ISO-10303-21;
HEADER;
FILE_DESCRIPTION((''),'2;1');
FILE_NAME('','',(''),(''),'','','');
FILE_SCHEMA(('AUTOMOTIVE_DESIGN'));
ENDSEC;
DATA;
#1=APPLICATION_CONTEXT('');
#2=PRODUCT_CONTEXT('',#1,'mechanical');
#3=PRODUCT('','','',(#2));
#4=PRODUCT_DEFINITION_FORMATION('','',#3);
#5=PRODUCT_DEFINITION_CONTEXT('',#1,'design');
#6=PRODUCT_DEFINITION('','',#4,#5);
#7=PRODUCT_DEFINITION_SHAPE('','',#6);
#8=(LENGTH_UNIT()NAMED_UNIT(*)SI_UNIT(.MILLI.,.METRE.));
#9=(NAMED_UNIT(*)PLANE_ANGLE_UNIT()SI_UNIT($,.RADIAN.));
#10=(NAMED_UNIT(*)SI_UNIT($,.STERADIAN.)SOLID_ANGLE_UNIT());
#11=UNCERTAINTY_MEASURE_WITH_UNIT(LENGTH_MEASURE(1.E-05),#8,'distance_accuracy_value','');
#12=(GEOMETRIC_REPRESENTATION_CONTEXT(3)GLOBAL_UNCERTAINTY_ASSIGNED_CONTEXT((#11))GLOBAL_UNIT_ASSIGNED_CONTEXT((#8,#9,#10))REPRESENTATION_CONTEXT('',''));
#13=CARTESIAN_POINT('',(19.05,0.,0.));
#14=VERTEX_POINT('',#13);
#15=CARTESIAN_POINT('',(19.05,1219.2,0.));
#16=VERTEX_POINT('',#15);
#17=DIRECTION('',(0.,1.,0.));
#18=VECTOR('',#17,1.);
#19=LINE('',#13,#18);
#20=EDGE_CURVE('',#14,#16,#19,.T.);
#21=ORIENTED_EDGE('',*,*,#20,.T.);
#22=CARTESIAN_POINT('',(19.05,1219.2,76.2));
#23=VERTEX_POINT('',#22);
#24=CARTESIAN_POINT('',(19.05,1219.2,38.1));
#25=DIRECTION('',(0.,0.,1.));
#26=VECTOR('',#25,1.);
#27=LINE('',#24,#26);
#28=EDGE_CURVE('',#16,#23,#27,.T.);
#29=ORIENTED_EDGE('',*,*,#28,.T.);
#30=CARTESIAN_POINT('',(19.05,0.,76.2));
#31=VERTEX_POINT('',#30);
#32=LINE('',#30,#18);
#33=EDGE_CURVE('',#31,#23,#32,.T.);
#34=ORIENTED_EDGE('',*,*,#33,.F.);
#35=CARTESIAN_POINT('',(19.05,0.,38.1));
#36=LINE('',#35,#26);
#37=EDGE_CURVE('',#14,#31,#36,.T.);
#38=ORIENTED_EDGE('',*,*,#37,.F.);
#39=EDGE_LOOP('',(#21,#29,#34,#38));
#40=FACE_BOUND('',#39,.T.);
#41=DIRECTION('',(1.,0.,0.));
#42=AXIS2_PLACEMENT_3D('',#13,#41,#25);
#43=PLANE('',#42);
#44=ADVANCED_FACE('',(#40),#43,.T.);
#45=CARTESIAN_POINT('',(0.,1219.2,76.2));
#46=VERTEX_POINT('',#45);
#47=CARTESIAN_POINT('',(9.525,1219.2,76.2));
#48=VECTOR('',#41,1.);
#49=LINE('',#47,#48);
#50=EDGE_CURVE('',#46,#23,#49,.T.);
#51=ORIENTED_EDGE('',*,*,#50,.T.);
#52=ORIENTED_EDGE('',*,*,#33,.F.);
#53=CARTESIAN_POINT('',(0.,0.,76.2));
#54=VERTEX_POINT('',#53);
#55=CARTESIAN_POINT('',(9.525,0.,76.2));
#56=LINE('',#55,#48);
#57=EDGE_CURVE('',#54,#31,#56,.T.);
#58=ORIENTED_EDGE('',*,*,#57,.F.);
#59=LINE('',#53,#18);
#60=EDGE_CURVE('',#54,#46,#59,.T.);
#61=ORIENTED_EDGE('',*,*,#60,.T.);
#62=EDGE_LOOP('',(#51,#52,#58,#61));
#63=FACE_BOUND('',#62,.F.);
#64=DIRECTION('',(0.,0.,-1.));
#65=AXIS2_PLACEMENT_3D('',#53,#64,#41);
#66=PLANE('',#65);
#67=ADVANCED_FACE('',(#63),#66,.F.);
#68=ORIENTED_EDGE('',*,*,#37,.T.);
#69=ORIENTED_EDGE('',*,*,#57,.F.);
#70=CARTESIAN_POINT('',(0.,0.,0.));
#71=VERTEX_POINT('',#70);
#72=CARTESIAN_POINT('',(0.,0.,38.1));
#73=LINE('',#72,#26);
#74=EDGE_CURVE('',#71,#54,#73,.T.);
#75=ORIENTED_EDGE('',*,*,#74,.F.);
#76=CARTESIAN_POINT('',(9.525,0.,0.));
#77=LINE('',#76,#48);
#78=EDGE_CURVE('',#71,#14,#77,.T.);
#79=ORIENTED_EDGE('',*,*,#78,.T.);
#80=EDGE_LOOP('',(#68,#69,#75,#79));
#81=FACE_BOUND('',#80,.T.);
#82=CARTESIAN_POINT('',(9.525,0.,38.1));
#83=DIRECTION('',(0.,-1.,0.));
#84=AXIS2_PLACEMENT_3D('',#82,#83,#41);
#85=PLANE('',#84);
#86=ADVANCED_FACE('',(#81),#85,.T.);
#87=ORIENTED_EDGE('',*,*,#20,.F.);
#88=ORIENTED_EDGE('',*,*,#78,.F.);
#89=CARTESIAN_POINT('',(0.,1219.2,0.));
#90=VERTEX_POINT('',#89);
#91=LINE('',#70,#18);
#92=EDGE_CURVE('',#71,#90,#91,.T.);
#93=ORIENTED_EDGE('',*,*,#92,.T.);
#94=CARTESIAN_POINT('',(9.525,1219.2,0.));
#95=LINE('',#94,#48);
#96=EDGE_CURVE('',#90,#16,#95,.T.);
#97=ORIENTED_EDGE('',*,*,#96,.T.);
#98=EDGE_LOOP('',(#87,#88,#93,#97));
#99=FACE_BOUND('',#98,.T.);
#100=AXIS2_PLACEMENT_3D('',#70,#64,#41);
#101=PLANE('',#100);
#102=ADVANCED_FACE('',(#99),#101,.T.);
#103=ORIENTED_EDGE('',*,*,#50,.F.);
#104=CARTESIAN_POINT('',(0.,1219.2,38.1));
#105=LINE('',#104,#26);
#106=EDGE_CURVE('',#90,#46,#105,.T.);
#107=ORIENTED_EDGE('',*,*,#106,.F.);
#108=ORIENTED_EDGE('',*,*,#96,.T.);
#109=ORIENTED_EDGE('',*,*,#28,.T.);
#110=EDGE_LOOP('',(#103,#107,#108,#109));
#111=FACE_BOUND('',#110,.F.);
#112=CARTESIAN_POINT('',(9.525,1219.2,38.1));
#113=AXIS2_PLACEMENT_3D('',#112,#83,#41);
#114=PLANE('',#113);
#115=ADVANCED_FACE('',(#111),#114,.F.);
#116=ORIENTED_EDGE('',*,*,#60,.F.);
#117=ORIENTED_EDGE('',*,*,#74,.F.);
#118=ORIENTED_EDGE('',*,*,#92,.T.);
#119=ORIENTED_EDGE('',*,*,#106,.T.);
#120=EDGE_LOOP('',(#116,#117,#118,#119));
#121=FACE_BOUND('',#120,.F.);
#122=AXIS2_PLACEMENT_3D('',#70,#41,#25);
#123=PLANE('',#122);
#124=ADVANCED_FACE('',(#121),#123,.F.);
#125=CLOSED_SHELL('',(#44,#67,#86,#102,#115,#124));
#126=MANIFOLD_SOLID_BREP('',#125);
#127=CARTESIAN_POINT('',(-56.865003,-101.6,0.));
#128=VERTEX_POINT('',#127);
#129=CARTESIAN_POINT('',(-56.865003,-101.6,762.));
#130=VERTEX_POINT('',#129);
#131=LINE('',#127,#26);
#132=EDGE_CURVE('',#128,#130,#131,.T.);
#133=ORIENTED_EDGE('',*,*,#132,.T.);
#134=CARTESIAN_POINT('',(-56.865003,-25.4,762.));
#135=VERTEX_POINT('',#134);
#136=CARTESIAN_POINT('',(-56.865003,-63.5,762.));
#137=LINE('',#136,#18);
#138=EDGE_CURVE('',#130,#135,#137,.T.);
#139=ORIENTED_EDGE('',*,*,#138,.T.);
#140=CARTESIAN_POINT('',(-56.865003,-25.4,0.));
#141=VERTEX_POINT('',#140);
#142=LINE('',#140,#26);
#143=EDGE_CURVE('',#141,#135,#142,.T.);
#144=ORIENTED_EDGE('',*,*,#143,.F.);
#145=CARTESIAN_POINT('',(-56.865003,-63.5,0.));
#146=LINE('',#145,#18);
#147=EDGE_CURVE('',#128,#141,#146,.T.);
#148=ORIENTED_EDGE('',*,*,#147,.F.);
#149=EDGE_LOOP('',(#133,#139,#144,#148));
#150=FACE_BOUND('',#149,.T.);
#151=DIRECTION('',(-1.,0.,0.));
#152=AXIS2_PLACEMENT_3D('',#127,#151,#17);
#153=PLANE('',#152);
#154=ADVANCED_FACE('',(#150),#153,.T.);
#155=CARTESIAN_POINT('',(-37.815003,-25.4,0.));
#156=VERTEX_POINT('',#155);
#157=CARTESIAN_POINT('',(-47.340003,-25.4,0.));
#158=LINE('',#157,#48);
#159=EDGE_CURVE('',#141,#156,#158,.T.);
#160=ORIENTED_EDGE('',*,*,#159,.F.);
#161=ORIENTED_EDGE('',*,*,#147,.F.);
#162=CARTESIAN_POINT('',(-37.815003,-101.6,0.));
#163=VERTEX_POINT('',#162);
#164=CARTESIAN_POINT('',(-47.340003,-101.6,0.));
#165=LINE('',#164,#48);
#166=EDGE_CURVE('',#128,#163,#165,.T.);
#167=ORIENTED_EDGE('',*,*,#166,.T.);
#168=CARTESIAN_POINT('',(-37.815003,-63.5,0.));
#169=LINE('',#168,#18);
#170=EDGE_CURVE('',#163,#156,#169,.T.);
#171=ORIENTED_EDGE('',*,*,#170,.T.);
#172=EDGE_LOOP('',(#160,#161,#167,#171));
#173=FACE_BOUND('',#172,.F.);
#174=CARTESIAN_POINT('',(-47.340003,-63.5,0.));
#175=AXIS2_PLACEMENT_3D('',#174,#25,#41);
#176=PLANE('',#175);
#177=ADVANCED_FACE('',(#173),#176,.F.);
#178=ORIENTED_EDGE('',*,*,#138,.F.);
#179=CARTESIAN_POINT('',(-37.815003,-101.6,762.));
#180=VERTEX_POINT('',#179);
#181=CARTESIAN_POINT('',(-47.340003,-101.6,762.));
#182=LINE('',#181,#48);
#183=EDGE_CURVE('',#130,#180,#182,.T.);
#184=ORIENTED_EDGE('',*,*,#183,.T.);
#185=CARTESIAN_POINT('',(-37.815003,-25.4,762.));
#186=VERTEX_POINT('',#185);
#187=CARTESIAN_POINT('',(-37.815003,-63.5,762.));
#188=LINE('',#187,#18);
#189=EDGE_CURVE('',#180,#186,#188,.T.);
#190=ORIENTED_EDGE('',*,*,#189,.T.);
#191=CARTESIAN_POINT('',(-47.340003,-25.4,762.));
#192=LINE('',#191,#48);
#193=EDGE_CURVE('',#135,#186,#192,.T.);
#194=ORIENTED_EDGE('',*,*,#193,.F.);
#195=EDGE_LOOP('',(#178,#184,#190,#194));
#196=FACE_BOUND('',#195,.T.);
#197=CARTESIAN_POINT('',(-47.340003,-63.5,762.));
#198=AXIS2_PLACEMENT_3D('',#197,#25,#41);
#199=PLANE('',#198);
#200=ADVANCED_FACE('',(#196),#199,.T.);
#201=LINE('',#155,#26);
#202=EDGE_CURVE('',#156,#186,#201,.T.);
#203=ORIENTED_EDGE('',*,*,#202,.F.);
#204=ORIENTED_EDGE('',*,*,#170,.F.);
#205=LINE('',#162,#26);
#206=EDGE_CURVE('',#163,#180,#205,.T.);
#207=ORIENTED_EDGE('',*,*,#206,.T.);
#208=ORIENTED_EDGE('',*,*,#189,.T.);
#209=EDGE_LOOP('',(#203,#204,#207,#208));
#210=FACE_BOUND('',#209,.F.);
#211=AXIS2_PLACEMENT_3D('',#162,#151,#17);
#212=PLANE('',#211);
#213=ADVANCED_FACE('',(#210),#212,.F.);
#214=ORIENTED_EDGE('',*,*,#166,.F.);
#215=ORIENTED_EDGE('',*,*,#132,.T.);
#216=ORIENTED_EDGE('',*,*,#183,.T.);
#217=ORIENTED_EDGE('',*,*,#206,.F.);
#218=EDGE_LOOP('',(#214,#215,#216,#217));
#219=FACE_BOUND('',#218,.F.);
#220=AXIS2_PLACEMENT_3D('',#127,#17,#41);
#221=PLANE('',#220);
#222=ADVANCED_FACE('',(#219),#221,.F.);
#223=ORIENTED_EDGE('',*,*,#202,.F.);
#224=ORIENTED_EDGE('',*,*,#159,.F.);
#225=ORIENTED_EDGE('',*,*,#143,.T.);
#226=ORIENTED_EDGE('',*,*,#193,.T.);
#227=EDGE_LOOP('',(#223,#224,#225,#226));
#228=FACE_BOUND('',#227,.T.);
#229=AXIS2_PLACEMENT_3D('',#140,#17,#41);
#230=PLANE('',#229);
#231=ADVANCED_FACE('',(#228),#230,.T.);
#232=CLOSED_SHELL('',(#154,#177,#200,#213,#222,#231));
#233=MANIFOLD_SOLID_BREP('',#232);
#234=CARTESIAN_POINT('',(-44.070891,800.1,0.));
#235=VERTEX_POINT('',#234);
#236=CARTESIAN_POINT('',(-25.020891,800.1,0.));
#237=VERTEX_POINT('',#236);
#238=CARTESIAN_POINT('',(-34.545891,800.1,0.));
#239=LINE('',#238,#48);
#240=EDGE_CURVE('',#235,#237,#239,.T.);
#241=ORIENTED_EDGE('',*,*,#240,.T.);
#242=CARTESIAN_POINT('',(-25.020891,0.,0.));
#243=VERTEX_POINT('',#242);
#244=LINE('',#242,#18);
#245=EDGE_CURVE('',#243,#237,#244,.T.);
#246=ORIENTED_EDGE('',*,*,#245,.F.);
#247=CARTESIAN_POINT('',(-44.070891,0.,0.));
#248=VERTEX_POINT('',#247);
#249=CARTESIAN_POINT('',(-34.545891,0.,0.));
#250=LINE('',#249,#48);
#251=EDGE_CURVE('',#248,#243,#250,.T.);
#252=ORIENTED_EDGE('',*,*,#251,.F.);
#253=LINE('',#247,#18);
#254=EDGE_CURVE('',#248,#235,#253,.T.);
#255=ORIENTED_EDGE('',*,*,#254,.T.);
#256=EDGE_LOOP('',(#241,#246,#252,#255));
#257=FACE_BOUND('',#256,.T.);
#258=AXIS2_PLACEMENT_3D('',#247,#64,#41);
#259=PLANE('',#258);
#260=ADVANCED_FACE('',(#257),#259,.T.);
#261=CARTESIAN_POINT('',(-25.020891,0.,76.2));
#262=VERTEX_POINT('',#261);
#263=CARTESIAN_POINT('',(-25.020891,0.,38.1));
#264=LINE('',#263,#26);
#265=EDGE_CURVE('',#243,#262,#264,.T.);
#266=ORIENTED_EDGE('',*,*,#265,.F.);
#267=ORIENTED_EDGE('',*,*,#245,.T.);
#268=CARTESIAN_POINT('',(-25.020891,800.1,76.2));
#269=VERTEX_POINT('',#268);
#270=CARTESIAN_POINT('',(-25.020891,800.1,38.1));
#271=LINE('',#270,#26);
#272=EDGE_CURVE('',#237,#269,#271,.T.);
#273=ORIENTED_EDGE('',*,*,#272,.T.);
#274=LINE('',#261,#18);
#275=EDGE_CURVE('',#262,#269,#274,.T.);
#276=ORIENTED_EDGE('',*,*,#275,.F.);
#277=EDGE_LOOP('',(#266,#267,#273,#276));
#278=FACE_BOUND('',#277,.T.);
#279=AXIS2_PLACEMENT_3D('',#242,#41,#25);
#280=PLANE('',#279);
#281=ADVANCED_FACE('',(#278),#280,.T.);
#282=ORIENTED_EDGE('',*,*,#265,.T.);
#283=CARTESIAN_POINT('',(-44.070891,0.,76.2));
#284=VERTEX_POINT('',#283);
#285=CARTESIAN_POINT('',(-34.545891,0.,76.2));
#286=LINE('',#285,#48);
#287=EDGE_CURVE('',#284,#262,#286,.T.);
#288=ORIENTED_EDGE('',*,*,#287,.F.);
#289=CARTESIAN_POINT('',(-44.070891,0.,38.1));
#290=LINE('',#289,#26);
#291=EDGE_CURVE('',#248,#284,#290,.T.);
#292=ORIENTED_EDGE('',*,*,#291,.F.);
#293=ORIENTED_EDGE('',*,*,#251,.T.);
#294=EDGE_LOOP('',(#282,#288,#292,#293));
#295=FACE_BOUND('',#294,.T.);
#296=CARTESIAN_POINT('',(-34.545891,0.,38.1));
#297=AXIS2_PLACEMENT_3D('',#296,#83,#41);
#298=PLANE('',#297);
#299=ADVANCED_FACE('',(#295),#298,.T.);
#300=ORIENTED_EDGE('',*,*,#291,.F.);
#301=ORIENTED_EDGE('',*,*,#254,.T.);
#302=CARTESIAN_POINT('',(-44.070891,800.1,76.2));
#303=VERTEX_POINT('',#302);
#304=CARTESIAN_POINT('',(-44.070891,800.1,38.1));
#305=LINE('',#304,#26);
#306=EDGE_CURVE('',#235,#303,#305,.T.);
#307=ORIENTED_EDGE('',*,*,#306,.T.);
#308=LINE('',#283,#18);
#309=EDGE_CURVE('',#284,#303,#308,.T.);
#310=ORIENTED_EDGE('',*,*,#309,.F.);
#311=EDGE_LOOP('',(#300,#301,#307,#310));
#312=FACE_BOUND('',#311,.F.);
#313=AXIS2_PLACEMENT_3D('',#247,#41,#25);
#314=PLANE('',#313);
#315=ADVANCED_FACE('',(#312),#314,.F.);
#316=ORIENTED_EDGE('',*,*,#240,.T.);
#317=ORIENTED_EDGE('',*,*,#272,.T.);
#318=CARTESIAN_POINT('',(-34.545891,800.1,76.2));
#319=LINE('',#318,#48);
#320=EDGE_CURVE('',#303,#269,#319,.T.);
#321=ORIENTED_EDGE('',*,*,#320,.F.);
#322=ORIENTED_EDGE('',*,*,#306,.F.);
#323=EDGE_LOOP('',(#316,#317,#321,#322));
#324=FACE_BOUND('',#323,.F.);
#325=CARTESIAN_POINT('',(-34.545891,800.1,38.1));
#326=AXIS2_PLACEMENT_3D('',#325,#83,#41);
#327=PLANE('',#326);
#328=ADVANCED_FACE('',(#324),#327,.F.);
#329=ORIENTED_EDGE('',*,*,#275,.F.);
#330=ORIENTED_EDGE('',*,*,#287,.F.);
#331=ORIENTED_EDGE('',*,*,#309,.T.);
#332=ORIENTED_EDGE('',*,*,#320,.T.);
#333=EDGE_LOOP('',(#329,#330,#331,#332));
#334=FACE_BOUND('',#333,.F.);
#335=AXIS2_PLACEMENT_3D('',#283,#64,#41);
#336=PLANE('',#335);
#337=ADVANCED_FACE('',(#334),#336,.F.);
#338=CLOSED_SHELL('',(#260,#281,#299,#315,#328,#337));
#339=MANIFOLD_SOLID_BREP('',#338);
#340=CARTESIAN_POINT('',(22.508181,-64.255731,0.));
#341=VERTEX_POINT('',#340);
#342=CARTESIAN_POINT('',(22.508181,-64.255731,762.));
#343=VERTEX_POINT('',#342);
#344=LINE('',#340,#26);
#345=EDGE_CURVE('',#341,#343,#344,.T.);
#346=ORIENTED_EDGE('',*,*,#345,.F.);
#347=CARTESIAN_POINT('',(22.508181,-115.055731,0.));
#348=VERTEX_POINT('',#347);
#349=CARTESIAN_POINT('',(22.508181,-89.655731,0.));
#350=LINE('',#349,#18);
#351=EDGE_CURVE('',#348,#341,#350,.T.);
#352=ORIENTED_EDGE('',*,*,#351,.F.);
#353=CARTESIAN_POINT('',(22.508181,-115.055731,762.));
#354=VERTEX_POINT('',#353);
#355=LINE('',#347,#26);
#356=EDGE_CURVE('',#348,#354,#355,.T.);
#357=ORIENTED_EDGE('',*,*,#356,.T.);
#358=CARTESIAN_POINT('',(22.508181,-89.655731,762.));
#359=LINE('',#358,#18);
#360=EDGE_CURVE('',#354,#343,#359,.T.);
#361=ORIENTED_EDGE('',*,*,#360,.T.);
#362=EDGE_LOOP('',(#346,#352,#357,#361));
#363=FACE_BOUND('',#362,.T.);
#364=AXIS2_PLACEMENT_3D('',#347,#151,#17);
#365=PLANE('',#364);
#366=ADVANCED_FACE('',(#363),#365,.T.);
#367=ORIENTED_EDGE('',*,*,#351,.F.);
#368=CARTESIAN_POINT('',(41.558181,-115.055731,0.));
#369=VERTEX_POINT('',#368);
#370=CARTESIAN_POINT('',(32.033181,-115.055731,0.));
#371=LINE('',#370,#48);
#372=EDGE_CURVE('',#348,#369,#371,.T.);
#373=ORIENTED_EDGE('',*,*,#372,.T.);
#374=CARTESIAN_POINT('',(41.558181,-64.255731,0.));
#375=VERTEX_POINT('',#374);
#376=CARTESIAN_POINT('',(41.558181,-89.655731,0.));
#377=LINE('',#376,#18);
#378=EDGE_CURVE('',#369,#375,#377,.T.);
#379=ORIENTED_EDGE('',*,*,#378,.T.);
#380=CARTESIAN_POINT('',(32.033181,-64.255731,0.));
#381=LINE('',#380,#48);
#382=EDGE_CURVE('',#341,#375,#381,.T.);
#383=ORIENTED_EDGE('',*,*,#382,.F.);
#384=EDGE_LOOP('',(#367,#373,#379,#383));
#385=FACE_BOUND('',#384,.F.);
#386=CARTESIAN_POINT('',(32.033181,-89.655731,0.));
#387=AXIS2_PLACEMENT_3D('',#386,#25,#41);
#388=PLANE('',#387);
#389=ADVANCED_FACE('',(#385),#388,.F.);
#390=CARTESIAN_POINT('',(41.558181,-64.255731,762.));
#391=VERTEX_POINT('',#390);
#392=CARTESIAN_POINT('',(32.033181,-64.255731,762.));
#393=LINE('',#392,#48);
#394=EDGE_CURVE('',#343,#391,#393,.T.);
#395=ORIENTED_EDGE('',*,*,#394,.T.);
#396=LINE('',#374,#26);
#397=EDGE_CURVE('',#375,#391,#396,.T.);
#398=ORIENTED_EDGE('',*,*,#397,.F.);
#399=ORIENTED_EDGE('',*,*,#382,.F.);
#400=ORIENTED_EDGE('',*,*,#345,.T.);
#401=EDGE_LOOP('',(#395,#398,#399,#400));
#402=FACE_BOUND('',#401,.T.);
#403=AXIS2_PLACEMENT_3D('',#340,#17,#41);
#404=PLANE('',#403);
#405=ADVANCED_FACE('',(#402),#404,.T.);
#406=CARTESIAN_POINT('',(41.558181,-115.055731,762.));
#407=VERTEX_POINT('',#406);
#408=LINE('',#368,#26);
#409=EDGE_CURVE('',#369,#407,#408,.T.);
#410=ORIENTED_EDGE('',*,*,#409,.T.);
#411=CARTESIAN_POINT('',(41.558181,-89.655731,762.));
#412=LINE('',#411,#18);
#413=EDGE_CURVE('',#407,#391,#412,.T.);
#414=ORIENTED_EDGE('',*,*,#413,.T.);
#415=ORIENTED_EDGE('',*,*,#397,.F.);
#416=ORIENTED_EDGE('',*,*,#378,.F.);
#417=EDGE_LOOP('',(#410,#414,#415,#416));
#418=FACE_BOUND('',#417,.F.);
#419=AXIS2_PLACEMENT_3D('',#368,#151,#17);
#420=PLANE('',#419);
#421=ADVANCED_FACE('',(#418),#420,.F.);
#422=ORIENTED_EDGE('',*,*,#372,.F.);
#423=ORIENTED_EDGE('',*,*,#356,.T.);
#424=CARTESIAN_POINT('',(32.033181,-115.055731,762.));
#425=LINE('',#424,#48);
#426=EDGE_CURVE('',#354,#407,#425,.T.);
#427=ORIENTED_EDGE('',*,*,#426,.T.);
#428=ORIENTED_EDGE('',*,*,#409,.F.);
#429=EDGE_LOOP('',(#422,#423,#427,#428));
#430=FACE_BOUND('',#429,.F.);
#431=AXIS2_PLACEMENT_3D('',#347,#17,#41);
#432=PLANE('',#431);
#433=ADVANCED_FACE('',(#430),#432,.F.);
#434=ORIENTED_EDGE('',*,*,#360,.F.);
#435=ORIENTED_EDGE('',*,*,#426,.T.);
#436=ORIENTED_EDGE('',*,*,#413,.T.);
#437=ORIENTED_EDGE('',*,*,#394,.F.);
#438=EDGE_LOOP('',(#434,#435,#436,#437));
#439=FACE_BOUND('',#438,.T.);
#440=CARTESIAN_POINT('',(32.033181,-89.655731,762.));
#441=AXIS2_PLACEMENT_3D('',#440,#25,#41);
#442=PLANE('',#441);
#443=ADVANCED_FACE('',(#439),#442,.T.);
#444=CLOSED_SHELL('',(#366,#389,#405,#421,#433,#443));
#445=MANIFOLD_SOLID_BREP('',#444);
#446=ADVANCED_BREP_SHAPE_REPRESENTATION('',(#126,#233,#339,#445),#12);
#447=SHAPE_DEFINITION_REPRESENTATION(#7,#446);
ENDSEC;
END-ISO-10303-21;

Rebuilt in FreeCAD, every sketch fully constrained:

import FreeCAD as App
import Part
import Sketcher
from FreeCAD import Vector
Q = App.Units.Quantity


def add_polygon(sketch, points):
    """Adds a closed chain of lines whose ends are joined by coincident constraints."""
    first, n = sketch.GeometryCount, len(points)
    for a, b in zip(points, points[1:] + points[:1]):
        sketch.addGeometry(Part.LineSegment(App.Vector(*a, 0), App.Vector(*b, 0)), False)
    for i in range(n):
        sketch.addConstraint(Sketcher.Constraint("Coincident", first + i, 2, first + (i + 1) % n, 1))

doc = App.newDocument("Part")
params = doc.addObject("Spreadsheet::Sheet", "Params")
for row, (alias, value) in enumerate([
    ("sketch1_height", "3 in"),
    ("sketch1_width", "0.75 in"),
    ("pad1_length", "48 in"),
    ("sketch2_height", "3 in"),
    ("sketch2_width", "0.75 in"),
    ("pad2_length", "31.5 in"),
    ("sketch3_height", "3 in"),
    ("sketch3_width", "0.75 in"),
    ("pad3_length", "30 in"),
    ("sketch4_height", "2 in"),
    ("sketch4_width", "0.75 in"),
    ("pad4_length", "30 in"),
], start=1):
    params.set(f"A{row}", alias)
    params.set(f"B{row}", "=" + value)
    params.setAlias(f"B{row}", alias)

body = doc.addObject("PartDesign::Body", "Body")

sketch1 = body.newObject("Sketcher::SketchObject", "Sketch")
sketch1.AttachmentSupport = (doc.getObject("XZ_Plane"), [""])
sketch1.MapMode = "FlatFace"
add_polygon(sketch1, [(0, 76), (0, 0), (19, 0), (19, 76)])
sketch1.addConstraint(Sketcher.Constraint("Vertical", 0))
sketch1.addConstraint(Sketcher.Constraint("Horizontal", 1))
sketch1.addConstraint(Sketcher.Constraint("Vertical", 2))
sketch1.addConstraint(Sketcher.Constraint("Horizontal", 3))
sketch1.addConstraint(Sketcher.Constraint("Coincident", 0, 2, -1, 1))
sketch1.addConstraint(Sketcher.Constraint("DistanceY", 0, 2, 0, 1, Q("3 in")))
sketch1.addConstraint(Sketcher.Constraint("DistanceX", 1, 1, 1, 2, Q("0.75 in")))
sketch1.setExpression("Constraints[9]", "Params.sketch1_height")
sketch1.setExpression("Constraints[10]", "Params.sketch1_width")
pad1 = body.newObject("PartDesign::Pad", "Pad")
pad1.Profile = sketch1
pad1.setExpression("Length", "Params.pad1_length")
pad1.Reversed = True
body2 = doc.addObject("PartDesign::Body", "Body001")

sketch2 = body2.newObject("Sketcher::SketchObject", "Sketch001")
sketch2.AttachmentSupport = (doc.getObject("XZ_Plane001"), [""])
sketch2.MapMode = "FlatFace"
add_polygon(sketch2, [(-44, 76), (-44, 0), (-25, 0), (-25, 76)])
sketch2.addConstraint(Sketcher.Constraint("Vertical", 0))
sketch2.addConstraint(Sketcher.Constraint("Horizontal", 1))
sketch2.addConstraint(Sketcher.Constraint("Vertical", 2))
sketch2.addConstraint(Sketcher.Constraint("Horizontal", 3))
sketch2.addConstraint(Sketcher.Constraint("PointOnObject", 0, 2, -1))
sketch2.addConstraint(Sketcher.Constraint("DistanceY", 0, 2, 0, 1, Q("3 in")))
sketch2.addConstraint(Sketcher.Constraint("DistanceX", 1, 1, 1, 2, Q("0.75 in")))
sketch2.addConstraint(Sketcher.Constraint("DistanceX", 0, 2, -1, 1, Q("44.070891 mm")))
sketch2.setExpression("Constraints[9]", "Params.sketch2_height")
sketch2.setExpression("Constraints[10]", "Params.sketch2_width")
pad2 = body2.newObject("PartDesign::Pad", "Pad001")
pad2.Profile = sketch2
pad2.setExpression("Length", "Params.pad2_length")
pad2.Reversed = True
body3 = doc.addObject("PartDesign::Body", "Body002")

sketch3 = body3.newObject("Sketcher::SketchObject", "Sketch002")
sketch3.AttachmentSupport = (doc.getObject("XY_Plane002"), [""])
sketch3.MapMode = "FlatFace"
add_polygon(sketch3, [(-57, -25), (-57, -102), (-38, -102), (-38, -25)])
sketch3.addConstraint(Sketcher.Constraint("Vertical", 0))
sketch3.addConstraint(Sketcher.Constraint("Horizontal", 1))
sketch3.addConstraint(Sketcher.Constraint("Vertical", 2))
sketch3.addConstraint(Sketcher.Constraint("Horizontal", 3))
sketch3.addConstraint(Sketcher.Constraint("DistanceY", 0, 2, 0, 1, Q("3 in")))
sketch3.addConstraint(Sketcher.Constraint("DistanceY", 0, 2, -1, 1, Q("4 in")))
sketch3.addConstraint(Sketcher.Constraint("DistanceX", 1, 1, 1, 2, Q("0.75 in")))
sketch3.addConstraint(Sketcher.Constraint("DistanceX", 0, 2, -1, 1, Q("56.865003 mm")))
sketch3.setExpression("Constraints[8]", "Params.sketch3_height")
sketch3.setExpression("Constraints[10]", "Params.sketch3_width")
pad3 = body3.newObject("PartDesign::Pad", "Pad002")
pad3.Profile = sketch3
pad3.setExpression("Length", "Params.pad3_length")
body4 = doc.addObject("PartDesign::Body", "Body003")

sketch4 = body4.newObject("Sketcher::SketchObject", "Sketch003")
sketch4.AttachmentSupport = (doc.getObject("XY_Plane003"), [""])
sketch4.MapMode = "FlatFace"
add_polygon(sketch4, [(23, -64), (23, -115), (42, -115), (42, -64)])
sketch4.addConstraint(Sketcher.Constraint("Vertical", 0))
sketch4.addConstraint(Sketcher.Constraint("Horizontal", 1))
sketch4.addConstraint(Sketcher.Constraint("Vertical", 2))
sketch4.addConstraint(Sketcher.Constraint("Horizontal", 3))
sketch4.addConstraint(Sketcher.Constraint("DistanceY", 0, 2, 0, 1, Q("2 in")))
sketch4.addConstraint(Sketcher.Constraint("DistanceX", 1, 1, 1, 2, Q("0.75 in")))
sketch4.addConstraint(Sketcher.Constraint("DistanceX", -1, 1, 0, 2, Q("22.508181 mm")))
sketch4.addConstraint(Sketcher.Constraint("DistanceY", 0, 2, -1, 1, Q("115.055731 mm")))
sketch4.setExpression("Constraints[8]", "Params.sketch4_height")
sketch4.setExpression("Constraints[9]", "Params.sketch4_width")
pad4 = body4.newObject("PartDesign::Pad", "Pad003")
pad4.Profile = sketch4
pad4.setExpression("Length", "Params.pad4_length")

doc.recompute()
